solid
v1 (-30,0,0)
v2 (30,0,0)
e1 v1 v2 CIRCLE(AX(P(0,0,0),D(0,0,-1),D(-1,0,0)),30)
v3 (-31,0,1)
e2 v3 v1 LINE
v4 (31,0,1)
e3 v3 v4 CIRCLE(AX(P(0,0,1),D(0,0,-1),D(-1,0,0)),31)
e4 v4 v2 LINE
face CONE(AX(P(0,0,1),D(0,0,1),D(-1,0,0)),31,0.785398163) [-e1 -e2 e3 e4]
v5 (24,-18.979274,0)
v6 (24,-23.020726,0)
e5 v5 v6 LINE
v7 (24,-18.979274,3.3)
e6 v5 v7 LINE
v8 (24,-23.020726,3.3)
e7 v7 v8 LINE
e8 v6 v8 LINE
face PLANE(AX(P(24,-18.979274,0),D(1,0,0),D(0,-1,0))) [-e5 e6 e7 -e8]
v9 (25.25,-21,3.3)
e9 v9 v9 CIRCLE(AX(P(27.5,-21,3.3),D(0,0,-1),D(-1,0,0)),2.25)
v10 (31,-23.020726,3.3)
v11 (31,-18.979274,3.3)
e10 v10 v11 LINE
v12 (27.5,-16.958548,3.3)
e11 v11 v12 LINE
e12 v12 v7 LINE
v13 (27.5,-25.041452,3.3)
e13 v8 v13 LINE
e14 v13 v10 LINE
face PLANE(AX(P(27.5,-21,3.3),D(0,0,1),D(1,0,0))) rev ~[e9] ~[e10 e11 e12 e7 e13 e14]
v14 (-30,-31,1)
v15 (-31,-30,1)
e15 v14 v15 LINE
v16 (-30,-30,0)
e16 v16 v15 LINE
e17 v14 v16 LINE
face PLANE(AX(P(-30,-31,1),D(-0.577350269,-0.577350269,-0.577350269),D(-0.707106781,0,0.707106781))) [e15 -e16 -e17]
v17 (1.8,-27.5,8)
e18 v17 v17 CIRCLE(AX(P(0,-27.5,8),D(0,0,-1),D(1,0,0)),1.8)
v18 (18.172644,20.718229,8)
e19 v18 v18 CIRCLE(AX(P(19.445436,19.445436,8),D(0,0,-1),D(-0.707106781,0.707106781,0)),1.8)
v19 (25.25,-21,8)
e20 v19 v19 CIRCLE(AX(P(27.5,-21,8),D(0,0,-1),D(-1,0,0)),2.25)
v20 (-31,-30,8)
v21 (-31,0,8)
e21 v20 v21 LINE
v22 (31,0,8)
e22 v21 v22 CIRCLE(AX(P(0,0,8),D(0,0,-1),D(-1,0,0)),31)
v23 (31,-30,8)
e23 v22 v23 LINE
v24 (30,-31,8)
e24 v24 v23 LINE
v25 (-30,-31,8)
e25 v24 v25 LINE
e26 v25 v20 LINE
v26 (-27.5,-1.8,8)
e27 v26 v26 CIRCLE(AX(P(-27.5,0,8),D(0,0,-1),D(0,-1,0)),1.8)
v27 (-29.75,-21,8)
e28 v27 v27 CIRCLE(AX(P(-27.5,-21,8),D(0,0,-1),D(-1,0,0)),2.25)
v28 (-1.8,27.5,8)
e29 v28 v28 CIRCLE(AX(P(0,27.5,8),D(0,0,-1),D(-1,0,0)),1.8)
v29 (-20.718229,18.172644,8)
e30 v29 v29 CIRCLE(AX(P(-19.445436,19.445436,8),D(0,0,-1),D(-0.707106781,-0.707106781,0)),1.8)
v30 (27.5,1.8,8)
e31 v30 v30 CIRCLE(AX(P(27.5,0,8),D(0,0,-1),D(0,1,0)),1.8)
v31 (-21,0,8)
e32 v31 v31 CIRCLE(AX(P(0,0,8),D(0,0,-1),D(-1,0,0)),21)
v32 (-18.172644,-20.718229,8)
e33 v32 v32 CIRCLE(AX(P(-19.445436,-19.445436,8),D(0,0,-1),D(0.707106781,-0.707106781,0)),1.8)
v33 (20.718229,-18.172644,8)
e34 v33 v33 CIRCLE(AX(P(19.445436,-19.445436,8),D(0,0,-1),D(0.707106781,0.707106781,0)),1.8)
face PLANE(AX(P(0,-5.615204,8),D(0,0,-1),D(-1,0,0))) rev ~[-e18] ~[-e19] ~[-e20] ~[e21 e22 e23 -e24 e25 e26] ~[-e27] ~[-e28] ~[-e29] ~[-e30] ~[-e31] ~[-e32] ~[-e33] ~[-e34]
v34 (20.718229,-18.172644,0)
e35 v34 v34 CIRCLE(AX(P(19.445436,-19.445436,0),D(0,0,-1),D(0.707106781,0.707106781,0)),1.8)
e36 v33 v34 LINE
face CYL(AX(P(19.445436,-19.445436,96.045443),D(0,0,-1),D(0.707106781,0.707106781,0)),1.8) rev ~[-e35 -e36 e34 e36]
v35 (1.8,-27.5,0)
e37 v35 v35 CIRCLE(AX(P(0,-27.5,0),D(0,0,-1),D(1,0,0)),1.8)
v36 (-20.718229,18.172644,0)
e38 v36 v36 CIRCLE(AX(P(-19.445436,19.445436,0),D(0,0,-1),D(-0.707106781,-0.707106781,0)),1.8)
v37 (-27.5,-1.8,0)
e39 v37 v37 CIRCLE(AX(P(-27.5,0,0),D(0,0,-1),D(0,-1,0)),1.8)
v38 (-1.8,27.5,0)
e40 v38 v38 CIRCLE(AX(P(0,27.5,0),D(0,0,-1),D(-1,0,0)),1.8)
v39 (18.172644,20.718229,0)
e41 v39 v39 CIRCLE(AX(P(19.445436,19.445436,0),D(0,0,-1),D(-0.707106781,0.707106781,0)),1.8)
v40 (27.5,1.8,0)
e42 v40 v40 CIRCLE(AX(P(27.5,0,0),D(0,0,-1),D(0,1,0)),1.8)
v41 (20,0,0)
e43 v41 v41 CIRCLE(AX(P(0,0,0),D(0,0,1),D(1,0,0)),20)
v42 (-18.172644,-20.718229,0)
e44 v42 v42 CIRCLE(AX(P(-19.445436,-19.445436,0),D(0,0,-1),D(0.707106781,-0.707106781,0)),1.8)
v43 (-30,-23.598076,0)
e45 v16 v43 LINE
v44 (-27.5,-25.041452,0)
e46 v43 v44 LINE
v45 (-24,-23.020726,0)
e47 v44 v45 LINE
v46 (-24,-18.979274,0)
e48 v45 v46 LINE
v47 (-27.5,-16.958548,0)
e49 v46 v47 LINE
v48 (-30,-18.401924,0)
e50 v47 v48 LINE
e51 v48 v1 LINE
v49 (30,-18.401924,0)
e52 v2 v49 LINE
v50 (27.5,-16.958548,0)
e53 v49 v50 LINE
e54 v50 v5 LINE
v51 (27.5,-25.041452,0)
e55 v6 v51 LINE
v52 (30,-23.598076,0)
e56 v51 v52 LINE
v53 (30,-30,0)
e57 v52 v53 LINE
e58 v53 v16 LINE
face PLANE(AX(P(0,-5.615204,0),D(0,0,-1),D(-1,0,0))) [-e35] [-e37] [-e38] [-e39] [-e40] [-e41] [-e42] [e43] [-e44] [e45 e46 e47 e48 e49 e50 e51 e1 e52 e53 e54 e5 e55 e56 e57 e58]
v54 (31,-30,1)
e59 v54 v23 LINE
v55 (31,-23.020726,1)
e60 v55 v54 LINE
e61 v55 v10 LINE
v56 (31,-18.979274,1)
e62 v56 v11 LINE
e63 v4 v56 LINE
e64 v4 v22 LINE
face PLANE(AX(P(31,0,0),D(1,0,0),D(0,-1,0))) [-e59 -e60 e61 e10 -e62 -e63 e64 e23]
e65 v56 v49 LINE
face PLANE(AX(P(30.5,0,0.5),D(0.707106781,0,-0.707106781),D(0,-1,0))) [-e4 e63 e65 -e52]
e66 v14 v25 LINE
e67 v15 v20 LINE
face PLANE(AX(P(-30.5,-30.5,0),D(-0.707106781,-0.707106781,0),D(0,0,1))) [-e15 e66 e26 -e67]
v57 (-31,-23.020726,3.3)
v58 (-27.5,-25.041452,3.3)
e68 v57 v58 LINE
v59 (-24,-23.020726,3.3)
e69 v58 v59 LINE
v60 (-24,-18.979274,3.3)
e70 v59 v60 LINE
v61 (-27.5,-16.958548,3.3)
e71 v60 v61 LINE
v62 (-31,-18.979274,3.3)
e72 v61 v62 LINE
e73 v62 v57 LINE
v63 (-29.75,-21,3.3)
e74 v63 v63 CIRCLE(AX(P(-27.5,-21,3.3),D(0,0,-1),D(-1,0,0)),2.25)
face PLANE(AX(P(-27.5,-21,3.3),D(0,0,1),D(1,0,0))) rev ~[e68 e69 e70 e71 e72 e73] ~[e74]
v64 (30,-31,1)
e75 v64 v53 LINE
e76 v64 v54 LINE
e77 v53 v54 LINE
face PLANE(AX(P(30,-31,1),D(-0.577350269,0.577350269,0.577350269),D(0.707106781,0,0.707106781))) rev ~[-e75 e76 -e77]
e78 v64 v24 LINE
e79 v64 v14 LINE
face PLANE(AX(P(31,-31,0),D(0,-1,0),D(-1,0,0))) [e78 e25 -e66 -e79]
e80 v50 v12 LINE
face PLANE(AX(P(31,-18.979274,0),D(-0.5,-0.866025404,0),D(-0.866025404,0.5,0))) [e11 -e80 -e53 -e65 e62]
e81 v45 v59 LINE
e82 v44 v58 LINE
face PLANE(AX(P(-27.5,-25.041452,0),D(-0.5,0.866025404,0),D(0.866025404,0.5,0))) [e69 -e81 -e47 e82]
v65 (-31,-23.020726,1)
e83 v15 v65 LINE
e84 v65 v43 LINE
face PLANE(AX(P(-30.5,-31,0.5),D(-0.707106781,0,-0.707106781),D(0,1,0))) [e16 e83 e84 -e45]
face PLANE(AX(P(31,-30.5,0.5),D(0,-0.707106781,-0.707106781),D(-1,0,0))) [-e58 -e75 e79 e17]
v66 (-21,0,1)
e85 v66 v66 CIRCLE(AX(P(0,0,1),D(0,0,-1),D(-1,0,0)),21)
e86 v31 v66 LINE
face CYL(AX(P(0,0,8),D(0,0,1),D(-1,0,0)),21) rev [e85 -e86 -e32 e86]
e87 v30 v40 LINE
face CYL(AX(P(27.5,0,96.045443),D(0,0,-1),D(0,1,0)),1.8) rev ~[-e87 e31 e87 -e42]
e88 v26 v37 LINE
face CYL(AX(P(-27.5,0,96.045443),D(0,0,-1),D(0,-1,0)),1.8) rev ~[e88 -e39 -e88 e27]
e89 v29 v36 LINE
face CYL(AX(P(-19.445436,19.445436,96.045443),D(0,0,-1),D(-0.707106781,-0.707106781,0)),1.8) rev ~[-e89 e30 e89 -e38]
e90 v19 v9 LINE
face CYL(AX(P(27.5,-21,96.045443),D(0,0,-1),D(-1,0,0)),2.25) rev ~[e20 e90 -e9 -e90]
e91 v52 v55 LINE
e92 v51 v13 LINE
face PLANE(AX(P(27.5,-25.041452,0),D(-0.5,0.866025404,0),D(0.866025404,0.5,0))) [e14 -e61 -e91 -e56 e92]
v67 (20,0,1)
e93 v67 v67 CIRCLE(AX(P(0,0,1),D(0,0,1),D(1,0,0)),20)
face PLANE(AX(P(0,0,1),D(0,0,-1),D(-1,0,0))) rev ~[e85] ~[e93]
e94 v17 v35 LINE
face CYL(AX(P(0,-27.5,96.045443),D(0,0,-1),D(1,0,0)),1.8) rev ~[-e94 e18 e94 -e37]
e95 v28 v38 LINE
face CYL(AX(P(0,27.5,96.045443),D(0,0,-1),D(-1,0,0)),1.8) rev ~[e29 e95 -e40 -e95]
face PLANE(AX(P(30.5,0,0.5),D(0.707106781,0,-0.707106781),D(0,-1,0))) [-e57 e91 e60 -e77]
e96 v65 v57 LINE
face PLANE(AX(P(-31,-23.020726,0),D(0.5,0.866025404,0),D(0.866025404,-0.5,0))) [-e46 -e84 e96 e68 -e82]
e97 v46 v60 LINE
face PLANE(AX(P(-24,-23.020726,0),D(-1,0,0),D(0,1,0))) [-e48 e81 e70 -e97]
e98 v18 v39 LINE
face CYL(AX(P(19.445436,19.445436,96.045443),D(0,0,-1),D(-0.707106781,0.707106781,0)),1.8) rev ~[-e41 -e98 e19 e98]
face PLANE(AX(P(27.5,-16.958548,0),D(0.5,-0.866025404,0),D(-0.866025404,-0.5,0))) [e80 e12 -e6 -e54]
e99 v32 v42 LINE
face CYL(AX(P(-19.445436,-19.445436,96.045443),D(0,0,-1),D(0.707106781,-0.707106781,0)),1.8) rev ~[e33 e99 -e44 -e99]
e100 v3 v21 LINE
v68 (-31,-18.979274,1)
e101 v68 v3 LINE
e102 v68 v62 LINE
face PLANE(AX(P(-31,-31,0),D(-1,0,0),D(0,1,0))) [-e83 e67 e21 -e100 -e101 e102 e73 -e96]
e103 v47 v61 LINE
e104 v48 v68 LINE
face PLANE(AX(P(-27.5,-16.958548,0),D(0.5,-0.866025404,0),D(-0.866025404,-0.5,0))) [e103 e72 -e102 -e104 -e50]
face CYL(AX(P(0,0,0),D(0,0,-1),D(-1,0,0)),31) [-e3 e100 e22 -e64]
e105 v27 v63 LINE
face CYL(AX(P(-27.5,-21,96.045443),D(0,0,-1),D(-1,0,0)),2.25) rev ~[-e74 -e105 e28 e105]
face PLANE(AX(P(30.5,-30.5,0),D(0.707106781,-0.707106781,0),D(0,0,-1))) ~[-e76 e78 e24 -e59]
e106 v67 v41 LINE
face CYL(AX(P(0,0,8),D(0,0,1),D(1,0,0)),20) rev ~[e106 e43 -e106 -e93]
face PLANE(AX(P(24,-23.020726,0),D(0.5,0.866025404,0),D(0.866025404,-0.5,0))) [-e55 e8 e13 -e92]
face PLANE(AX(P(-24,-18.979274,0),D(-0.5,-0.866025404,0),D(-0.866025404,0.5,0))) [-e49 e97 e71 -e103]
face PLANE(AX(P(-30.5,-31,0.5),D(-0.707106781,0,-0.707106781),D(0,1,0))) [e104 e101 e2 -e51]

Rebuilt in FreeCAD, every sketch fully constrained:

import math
import FreeCAD as App
import Part
import Sketcher

V = App.Vector
Q = App.Units.Quantity


def edges_at(feature, points):
    """Names of the edges that pass closest to the given points."""
    edges = feature.Shape.Edges
    near = lambda p: min(range(len(edges)), key=lambda i: edges[i].distToShape(Part.Vertex(*p))[0])
    return sorted({f"Edge{near(p) + 1}" for p in points})


def add_polygon(sketch, points):
    """Adds a closed chain of lines whose ends are joined by coincident constraints."""
    first, n = sketch.GeometryCount, len(points)
    for a, b in zip(points, points[1:] + points[:1]):
        sketch.addGeometry(Part.LineSegment(App.Vector(*a, 0), App.Vector(*b, 0)), False)
    for i in range(n):
        sketch.addConstraint(Sketcher.Constraint("Coincident", first + i, 2, first + (i + 1) % n, 1))

doc = App.newDocument("Part")
body = doc.addObject("PartDesign::Body", "Body")

# Sketch on XY plane
sketch1 = body.newObject("Sketcher::SketchObject", "Sketch")
sketch1.AttachmentSupport = (doc.getObject("XY_Plane"), [""])
sketch1.MapMode = "FlatFace"
sketch1.addGeometry(Part.LineSegment(V(-31, -31, 0), V(31, -31, 0)), False)
sketch1.addGeometry(Part.LineSegment(V(31, -31, 0), V(31, 0, 0)), False)
sketch1.addGeometry(Part.ArcOfCircle(Part.Circle(V(0, 0, 0), V(0, 0, 1), 31), math.radians(0), math.radians(180)), False)
sketch1.addGeometry(Part.LineSegment(V(-31, 0, 0), V(-31, -31, 0)), False)
sketch1.addConstraint(Sketcher.Constraint("Coincident", 0, 2, 1, 1))
sketch1.addConstraint(Sketcher.Constraint("Tangent", 1, 2, 2, 1))
sketch1.addConstraint(Sketcher.Constraint("Tangent", 2, 2, 3, 1))
sketch1.addConstraint(Sketcher.Constraint("Coincident", 3, 2, 0, 1))
sketch1.addConstraint(Sketcher.Constraint("Horizontal", 0))
sketch1.addConstraint(Sketcher.Constraint("Vertical", 1))
sketch1.addConstraint(Sketcher.Constraint("Vertical", 3))
sketch1.addConstraint(Sketcher.Constraint("Coincident", 2, 3, -1, 1))
sketch1.addConstraint(Sketcher.Constraint("Radius", 2, Q("31 mm")))
sketch1.addConstraint(Sketcher.Constraint("DistanceY", 1, 1, 1, 2, Q("31 mm")))
pad1 = body.newObject("PartDesign::Pad", "Pad")
pad1.Profile = sketch1
pad1.Length = 8

# Sketch on XY plane
sketch2 = body.newObject("Sketcher::SketchObject", "Sketch001")
sketch2.AttachmentSupport = (doc.getObject("XY_Plane"), [""])
sketch2.MapMode = "FlatFace"
sketch2.AttachmentOffset = App.Placement(V(0, 0, 8), App.Rotation())
sketch2.addGeometry(Part.Circle(V(0, 0, 0), V(0, 0, 1), 20), False)
sketch2.addConstraint(Sketcher.Constraint("Coincident", 0, 3, -1, 1))
sketch2.addConstraint(Sketcher.Constraint("Diameter", 0, Q("40 mm")))
pocket1 = body.newObject("PartDesign::Pocket", "Pocket")
pocket1.Profile = sketch2
pocket1.Type = "ThroughAll"

# Sketch on XY plane
sketch3 = body.newObject("Sketcher::SketchObject", "Sketch002")
sketch3.AttachmentSupport = (doc.getObject("XY_Plane"), [""])
sketch3.MapMode = "FlatFace"
sketch3.AttachmentOffset = App.Placement(V(0, 0, 8), App.Rotation())
sketch3.addGeometry(Part.Circle(V(0, 27.5, 0), V(0, 0, 1), 1.8), False)
sketch3.addConstraint(Sketcher.Constraint("PointOnObject", 0, 3, -2))
sketch3.addConstraint(Sketcher.Constraint("Diameter", 0, Q("3.6 mm")))
sketch3.addConstraint(Sketcher.Constraint("DistanceY", -1, 1, 0, 3, Q("27.5 mm")))
doc.recompute()
hole = body.newObject("PartDesign::Hole", "Hole")
hole.Profile = sketch3
hole.ThreadType = "None"
hole.Diameter = 3.6
hole.DepthType = "ThroughAll"
doc.recompute()

polarpattern = body.newObject("PartDesign::PolarPattern", "PolarPattern")
polarpattern.Originals = [hole]
polarpattern.Axis = (doc.getObject("Z_Axis"), [""])
polarpattern.Angle = 360
polarpattern.Occurrences = 8
body.Tip = polarpattern
doc.recompute()

chamfer = body.newObject("PartDesign::Chamfer", "Chamfer")
chamfer.Base = (polarpattern, edges_at(polarpattern, [
    (31, -15.5, 0),
    (0, -31, 0),
    (-31, -15.5, 0),
    (0, 31, 0),
    (31, -31, 4),
    (-31, -31, 4),
]))
chamfer.Size = 1

# Sketch on XY plane
sketch4 = body.newObject("Sketcher::SketchObject", "Sketch003")
sketch4.AttachmentSupport = (doc.getObject("XY_Plane"), [""])
sketch4.MapMode = "FlatFace"
sketch4.AttachmentOffset = App.Placement(V(0, 0, 8), App.Rotation())
sketch4.addGeometry(Part.Circle(V(-27.5, -21, 0), V(0, 0, 1), 2.2), False)
sketch4.addGeometry(Part.Circle(V(27.5, -21, 0), V(0, 0, 1), 2.2), False)
sketch4.addConstraint(Sketcher.Constraint("Equal", 0, 1))
sketch4.addConstraint(Sketcher.Constraint("Symmetric", 0, 3, 1, 3, -2))
sketch4.addConstraint(Sketcher.Constraint("Diameter", 0, Q("4.5 mm")))
sketch4.addConstraint(Sketcher.Constraint("DistanceY", 0, 3, -1, 1, Q("21 mm")))
sketch4.addConstraint(Sketcher.Constraint("DistanceX", 0, 3, 1, 3, Q("55 mm")))
doc.recompute()
hole2 = body.newObject("PartDesign::Hole", "Hole001")
hole2.Profile = sketch4
hole2.ThreadType = "None"
hole2.Diameter = 4.5
hole2.DepthType = "ThroughAll"

# Sketch on XY plane
sketch5 = body.newObject("Sketcher::SketchObject", "Sketch004")
sketch5.AttachmentSupport = (doc.getObject("XY_Plane"), [""])
sketch5.MapMode = "FlatFace"
add_polygon(sketch5, [(-27.5, -25), (-24, -23), (-24, -19), (-27.5, -17), (-31, -19), (-31, -23)])  # lines 0-5
add_polygon(sketch5, [(31, -19), (27.5, -17), (24, -19), (24, -23), (27.5, -25), (31, -23)])  # lines 6-11
sketch5.addConstraint(Sketcher.Constraint("Vertical", 1))
sketch5.addConstraint(Sketcher.Constraint("Vertical", 4))
sketch5.addConstraint(Sketcher.Constraint("Vertical", 8))
sketch5.addConstraint(Sketcher.Constraint("Vertical", 11))
sketch5.addConstraint(Sketcher.Constraint("Symmetric", 2, 2, 6, 2, -2))
sketch5.addConstraint(Sketcher.Constraint("Symmetric", 1, 2, 7, 2, -2))
sketch5.addConstraint(Sketcher.Constraint("Symmetric", 5, 2, 9, 2, -2))
sketch5.addConstraint(Sketcher.Constraint("Symmetric", 4, 2, 10, 2, -2))
sketch5.addConstraint(Sketcher.Constraint("Parallel", 0, 3))
sketch5.addConstraint(Sketcher.Constraint("Parallel", 2, 5))
sketch5.addConstraint(Sketcher.Constraint("Parallel", 5, 6))
sketch5.addConstraint(Sketcher.Constraint("Parallel", 3, 7))
sketch5.addConstraint(Sketcher.Constraint("Parallel", 6, 9))
sketch5.addConstraint(Sketcher.Constraint("Horizontal", 1, 2, 3, 2))
sketch5.addConstraint(Sketcher.Constraint("Horizontal", 0, 2, 4, 2))
sketch5.addConstraint(Sketcher.Constraint("Angle", 0, Q("30 deg")))
sketch5.addConstraint(Sketcher.Constraint("DistanceX", 0, 2, -1, 1, Q("24 mm")))
sketch5.addConstraint(Sketcher.Constraint("DistanceX", 3, 2, -1, 1, Q("31 mm")))
sketch5.addConstraint(Sketcher.Constraint("DistanceY", 1, 1, 1, 2, Q("4.041452 mm")))
sketch5.addConstraint(Sketcher.Constraint("DistanceY", 2, 2, -1, 1, Q("16.958548 mm")))
pocket2 = body.newObject("PartDesign::Pocket", "Pocket001")
pocket2.Profile = sketch5
pocket2.Length = 3.3
pocket2.Reversed = True

# Sketch on XY plane
sketch6 = body.newObject("Sketcher::SketchObject", "Sketch005")
sketch6.AttachmentSupport = (doc.getObject("XY_Plane"), [""])
sketch6.MapMode = "FlatFace"
sketch6.AttachmentOffset = App.Placement(V(0, 0, 8), App.Rotation())
sketch6.addGeometry(Part.Circle(V(0, 0, 0), V(0, 0, 1), 21), False)
sketch6.addConstraint(Sketcher.Constraint("Coincident", 0, 3, -1, 1))
sketch6.addConstraint(Sketcher.Constraint("Diameter", 0, Q("42 mm")))
pocket3 = body.newObject("PartDesign::Pocket", "Pocket002")
pocket3.Profile = sketch6
pocket3.Length = 7

doc.recompute()
